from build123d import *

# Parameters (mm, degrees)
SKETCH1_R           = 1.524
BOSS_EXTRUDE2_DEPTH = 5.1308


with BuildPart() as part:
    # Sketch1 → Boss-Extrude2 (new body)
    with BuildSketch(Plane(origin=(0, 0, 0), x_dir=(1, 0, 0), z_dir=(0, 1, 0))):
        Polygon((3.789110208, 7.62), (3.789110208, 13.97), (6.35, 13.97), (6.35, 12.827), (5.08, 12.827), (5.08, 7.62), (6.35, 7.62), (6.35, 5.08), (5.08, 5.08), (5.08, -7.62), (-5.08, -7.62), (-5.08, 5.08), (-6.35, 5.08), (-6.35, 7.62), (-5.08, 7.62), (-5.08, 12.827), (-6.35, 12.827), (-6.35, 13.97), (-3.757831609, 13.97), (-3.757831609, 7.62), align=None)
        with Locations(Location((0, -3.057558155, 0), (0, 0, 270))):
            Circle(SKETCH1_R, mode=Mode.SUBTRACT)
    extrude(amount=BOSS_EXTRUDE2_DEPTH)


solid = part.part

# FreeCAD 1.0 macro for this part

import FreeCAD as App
import Part
import Sketcher
Q = App.Units.Quantity


def add_polygon(sketch, points):
    """Adds a closed chain of lines whose ends are joined by coincident constraints."""
    first, n = sketch.GeometryCount, len(points)
    for a, b in zip(points, points[1:] + points[:1]):
        sketch.addGeometry(Part.LineSegment(App.Vector(*a, 0), App.Vector(*b, 0)), False)
    for i in range(n):
        sketch.addConstraint(Sketcher.Constraint("Coincident", first + i, 2, first + (i + 1) % n, 1))

doc = App.newDocument("Part")
body = doc.addObject("PartDesign::Body", "Body")

# Sketch on XZ plane
sketch1 = body.newObject("Sketcher::SketchObject", "Sketch")
sketch1.AttachmentSupport = (doc.getObject("XZ_Plane"), [""])
sketch1.MapMode = "FlatFace"
add_polygon(sketch1, [(3.78911, -13.97), (3.78911, -7.62), (-3.757832, -7.62), (-3.757832, -13.97), (-6.35, -13.97), (-6.35, -12.827), (-5.08, -12.827), (-5.08, -7.62), (-6.35, -7.62), (-6.35, -5.08), (-5.08, -5.08), (-5.08, 7.62), (5.08, 7.62), (5.08, -5.08), (6.35, -5.08), (6.35, -7.62), (5.08, -7.62), (5.08, -12.827), (6.35, -12.827), (6.35, -13.97)])  # lines 0-19
sketch1.addGeometry(Part.Circle(App.Vector(0, 3.057558, 0), App.Vector(0, 0, 1), 1.524), False)  # 20
sketch1.addConstraint(Sketcher.Constraint("Vertical", 0))
sketch1.addConstraint(Sketcher.Constraint("Horizontal", 1))
sketch1.addConstraint(Sketcher.Constraint("Vertical", 2))
sketch1.addConstraint(Sketcher.Constraint("Horizontal", 3))
sketch1.addConstraint(Sketcher.Constraint("Vertical", 4))
sketch1.addConstraint(Sketcher.Constraint("Horizontal", 5))
sketch1.addConstraint(Sketcher.Constraint("Vertical", 6))
sketch1.addConstraint(Sketcher.Constraint("Horizontal", 7))
sketch1.addConstraint(Sketcher.Constraint("Vertical", 8))
sketch1.addConstraint(Sketcher.Constraint("Horizontal", 9))
sketch1.addConstraint(Sketcher.Constraint("Vertical", 10))
sketch1.addConstraint(Sketcher.Constraint("Horizontal", 11))
sketch1.addConstraint(Sketcher.Constraint("Vertical", 12))
sketch1.addConstraint(Sketcher.Constraint("Horizontal", 13))
sketch1.addConstraint(Sketcher.Constraint("Vertical", 14))
sketch1.addConstraint(Sketcher.Constraint("Horizontal", 15))
sketch1.addConstraint(Sketcher.Constraint("Vertical", 16))
sketch1.addConstraint(Sketcher.Constraint("Horizontal", 17))
sketch1.addConstraint(Sketcher.Constraint("Vertical", 18))
sketch1.addConstraint(Sketcher.Constraint("Horizontal", 19))
sketch1.addConstraint(Sketcher.Constraint("Symmetric", 6, 2, 11, 2, -1, 1))
sketch1.addConstraint(Sketcher.Constraint("Symmetric", 10, 2, 15, 2, -1, 1))
sketch1.addConstraint(Sketcher.Constraint("Symmetric", 9, 2, 12, 2, -2))
sketch1.addConstraint(Sketcher.Constraint("Symmetric", 4, 2, 17, 2, -2))
sketch1.addConstraint(Sketcher.Constraint("PointOnObject", 20, 3, -2))
sketch1.addConstraint(Sketcher.Constraint("Horizontal", 1, 2, 6, 2))
sketch1.addConstraint(Sketcher.Constraint("Horizontal", 3, 2, 18, 2))
sketch1.addConstraint(Sketcher.Constraint("Vertical", 4, 2, 7, 2))
sketch1.addConstraint(Sketcher.Constraint("Vertical", 14, 2, 17, 2))
sketch1.addConstraint(Sketcher.Constraint("Diameter", 20, Q("0.12 in")))
sketch1.addConstraint(Sketcher.Constraint("DistanceX", 11, 1, 11, 2, Q("0.4 in")))
sketch1.addConstraint(Sketcher.Constraint("DistanceY", 8, 1, 8, 2, Q("0.1 in")))
sketch1.addConstraint(Sketcher.Constraint("DistanceY", 10, 1, 10, 2, Q("0.5 in")))
sketch1.addConstraint(Sketcher.Constraint("DistanceX", 5, 1, 5, 2, Q("0.05 in")))
sketch1.addConstraint(Sketcher.Constraint("DistanceY", 0, 1, 0, 2, Q("0.25 in")))
sketch1.addConstraint(Sketcher.Constraint("DistanceY", 4, 1, 4, 2, Q("0.045 in")))
sketch1.addConstraint(Sketcher.Constraint("DistanceX", 1, 2, 1, 1, 7.546942))
sketch1.addConstraint(Sketcher.Constraint("DistanceX", 3, 2, 3, 1, 2.592168))
sketch1.addConstraint(Sketcher.Constraint("DistanceY", -1, 1, 20, 3, 3.057558))
pad1 = body.newObject("PartDesign::Pad", "Pad")
pad1.Profile = sketch1
pad1.Length = Q("0.202 in")
pad1.Reversed = True

doc.recompute()
